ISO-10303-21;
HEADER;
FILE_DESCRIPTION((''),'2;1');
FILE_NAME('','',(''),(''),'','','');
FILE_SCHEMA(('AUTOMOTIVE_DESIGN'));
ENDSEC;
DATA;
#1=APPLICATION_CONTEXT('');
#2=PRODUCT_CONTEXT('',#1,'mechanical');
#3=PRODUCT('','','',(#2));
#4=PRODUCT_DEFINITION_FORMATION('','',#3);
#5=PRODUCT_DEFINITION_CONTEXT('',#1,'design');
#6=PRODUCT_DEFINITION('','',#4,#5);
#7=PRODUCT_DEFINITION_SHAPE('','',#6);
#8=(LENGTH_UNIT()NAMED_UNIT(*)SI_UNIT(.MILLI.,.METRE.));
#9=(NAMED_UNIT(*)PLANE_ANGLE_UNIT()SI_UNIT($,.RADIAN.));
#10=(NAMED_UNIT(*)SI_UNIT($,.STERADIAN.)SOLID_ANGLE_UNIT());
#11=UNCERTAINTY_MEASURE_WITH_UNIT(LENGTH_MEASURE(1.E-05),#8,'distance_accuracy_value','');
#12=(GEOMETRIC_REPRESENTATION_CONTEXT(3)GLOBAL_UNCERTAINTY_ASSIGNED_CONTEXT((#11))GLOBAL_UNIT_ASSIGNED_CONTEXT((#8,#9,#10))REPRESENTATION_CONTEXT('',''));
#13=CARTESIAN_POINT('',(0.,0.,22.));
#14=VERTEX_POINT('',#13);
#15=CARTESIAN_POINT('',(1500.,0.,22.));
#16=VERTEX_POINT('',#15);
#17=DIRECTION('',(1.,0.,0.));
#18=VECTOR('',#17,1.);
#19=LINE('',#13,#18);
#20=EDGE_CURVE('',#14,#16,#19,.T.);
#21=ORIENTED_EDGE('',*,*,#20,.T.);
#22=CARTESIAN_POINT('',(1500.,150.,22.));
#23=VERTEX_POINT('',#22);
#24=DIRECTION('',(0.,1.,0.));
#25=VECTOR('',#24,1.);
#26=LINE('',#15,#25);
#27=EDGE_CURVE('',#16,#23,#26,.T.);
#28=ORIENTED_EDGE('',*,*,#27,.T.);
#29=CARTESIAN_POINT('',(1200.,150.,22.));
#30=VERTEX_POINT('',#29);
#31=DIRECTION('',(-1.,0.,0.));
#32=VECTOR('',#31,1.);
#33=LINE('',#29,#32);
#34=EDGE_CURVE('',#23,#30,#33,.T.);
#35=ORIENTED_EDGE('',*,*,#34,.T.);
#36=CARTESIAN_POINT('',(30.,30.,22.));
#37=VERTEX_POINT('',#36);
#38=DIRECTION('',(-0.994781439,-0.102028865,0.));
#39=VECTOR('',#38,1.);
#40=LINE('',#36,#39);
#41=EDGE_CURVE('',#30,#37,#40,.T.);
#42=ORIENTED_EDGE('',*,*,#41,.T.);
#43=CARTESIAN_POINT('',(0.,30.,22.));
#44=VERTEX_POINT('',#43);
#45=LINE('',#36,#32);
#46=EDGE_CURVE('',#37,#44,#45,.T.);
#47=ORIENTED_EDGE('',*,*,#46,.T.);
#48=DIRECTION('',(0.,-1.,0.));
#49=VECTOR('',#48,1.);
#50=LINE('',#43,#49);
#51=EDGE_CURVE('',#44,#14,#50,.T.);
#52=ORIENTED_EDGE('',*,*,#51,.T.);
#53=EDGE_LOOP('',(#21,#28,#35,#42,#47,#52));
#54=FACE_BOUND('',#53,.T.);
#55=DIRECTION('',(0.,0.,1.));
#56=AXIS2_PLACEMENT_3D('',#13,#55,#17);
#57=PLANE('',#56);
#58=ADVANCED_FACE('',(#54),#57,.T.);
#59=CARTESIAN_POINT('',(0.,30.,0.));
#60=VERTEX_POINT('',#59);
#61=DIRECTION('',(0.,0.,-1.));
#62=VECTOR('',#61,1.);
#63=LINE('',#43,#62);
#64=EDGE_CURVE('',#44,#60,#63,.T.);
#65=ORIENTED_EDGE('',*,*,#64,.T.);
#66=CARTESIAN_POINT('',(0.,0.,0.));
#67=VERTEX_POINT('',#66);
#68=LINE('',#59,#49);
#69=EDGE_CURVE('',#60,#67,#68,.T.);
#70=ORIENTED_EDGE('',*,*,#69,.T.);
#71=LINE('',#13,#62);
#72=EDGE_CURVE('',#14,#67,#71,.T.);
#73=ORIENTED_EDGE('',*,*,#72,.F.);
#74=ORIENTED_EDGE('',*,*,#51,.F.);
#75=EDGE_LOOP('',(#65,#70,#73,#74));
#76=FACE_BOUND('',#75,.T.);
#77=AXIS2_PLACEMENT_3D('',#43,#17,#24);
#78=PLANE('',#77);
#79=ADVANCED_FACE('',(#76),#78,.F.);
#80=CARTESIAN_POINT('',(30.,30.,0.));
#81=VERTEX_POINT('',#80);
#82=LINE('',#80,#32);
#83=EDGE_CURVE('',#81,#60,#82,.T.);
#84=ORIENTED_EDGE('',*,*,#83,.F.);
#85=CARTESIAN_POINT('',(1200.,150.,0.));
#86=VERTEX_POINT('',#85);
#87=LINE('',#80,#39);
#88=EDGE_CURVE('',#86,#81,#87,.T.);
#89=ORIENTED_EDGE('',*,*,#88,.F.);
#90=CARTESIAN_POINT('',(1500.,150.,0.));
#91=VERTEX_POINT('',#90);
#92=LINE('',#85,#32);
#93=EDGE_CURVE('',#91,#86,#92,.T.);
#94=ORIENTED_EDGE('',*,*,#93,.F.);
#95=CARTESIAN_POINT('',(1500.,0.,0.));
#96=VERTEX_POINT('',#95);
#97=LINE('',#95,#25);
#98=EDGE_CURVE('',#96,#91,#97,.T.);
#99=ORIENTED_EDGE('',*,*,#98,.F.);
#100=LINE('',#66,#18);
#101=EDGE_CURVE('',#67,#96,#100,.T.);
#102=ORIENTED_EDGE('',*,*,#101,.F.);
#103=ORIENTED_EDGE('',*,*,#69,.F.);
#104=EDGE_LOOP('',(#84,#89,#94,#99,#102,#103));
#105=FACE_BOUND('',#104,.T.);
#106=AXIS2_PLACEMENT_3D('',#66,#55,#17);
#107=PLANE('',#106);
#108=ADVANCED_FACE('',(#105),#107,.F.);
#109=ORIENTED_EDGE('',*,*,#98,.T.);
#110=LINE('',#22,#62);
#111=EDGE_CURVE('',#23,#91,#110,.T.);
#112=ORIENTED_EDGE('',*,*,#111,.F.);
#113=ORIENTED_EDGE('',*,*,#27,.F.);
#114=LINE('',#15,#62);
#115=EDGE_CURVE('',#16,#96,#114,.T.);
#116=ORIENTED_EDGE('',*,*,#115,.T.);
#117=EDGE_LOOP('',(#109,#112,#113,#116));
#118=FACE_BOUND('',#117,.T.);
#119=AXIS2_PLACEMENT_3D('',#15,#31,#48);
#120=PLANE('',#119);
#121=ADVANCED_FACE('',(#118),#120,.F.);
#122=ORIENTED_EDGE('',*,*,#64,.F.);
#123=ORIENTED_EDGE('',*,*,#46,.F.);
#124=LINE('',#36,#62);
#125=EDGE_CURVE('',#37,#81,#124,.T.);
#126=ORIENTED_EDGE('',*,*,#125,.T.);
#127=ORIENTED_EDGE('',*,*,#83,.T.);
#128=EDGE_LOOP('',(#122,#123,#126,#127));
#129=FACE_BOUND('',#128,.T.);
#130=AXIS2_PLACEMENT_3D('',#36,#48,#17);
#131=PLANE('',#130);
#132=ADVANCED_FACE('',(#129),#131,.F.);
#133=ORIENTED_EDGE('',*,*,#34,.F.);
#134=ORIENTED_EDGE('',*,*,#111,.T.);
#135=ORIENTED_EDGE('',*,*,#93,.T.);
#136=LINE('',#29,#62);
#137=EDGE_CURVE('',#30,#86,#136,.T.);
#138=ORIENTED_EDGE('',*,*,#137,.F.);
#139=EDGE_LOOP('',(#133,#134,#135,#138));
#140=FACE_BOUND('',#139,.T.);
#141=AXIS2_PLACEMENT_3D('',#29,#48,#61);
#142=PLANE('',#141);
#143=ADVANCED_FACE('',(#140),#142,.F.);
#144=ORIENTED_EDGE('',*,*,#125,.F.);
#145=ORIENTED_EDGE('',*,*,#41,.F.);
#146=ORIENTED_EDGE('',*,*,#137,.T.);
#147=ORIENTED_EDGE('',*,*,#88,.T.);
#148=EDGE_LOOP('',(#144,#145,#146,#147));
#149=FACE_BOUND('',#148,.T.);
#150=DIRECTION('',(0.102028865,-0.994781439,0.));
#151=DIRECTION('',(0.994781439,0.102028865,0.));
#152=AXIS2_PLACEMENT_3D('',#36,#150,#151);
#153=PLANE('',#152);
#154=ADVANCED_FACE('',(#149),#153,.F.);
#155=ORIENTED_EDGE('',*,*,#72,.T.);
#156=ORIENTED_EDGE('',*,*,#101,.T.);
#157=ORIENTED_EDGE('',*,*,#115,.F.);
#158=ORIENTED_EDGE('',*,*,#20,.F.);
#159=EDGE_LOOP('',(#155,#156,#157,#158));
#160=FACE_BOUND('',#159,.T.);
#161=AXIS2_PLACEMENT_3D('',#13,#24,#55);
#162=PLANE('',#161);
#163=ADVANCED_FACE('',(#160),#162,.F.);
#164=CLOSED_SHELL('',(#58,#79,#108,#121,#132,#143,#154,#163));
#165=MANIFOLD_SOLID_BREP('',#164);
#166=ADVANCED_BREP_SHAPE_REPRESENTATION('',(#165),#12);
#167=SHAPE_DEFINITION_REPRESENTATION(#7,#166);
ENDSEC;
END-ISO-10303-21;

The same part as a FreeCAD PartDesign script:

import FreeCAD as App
import Part
import Sketcher

V = App.Vector
Q = App.Units.Quantity

doc = App.newDocument("Part")
body = doc.addObject("PartDesign::Body", "Body")

sketch1 = doc.addObject("Sketcher::SketchObject", "Sketch")
body.addObject(sketch1)
sketch1.AttachmentSupport = (doc.XY_Plane, [""])
sketch1.MapMode = "FlatFace"
sketch1.addGeometry([
    Part.LineSegment(V(1200, 150, 0), V(30, 30, 0)),
    Part.LineSegment(V(30, 30, 0), V(0, 30, 0)),
    Part.LineSegment(V(0, 30, 0), V(0, 0, 0)),
    Part.LineSegment(V(0, 0, 0), V(1500, 0, 0)),
    Part.LineSegment(V(1500, 0, 0), V(1500, 150, 0)),
    Part.LineSegment(V(1500, 150, 0), V(1200, 150, 0)),
], False)
sketch1.addConstraint([
    Sketcher.Constraint("Coincident", 0, 2, 1, 1),
    Sketcher.Constraint("Coincident", 1, 2, 2, 1),
    Sketcher.Constraint("Coincident", 2, 2, 3, 1),
    Sketcher.Constraint("Coincident", 3, 2, 4, 1),
    Sketcher.Constraint("Coincident", 4, 2, 5, 1),
    Sketcher.Constraint("Coincident", 5, 2, 0, 1),
    Sketcher.Constraint("Horizontal", 1),
    Sketcher.Constraint("Vertical", 2),
    Sketcher.Constraint("Horizontal", 3),
    Sketcher.Constraint("Vertical", 4),
    Sketcher.Constraint("Horizontal", 5),
    Sketcher.Constraint("Coincident", 2, 2, -1, 1),
    Sketcher.Constraint("Equal", 1, 2),
    Sketcher.Constraint("DistanceX", 1, 2, 1, 1, Q("30 mm")),
    Sketcher.Constraint("DistanceX", 3, 1, 3, 2, Q("1500 mm")),
    Sketcher.Constraint("DistanceX", 5, 2, 5, 1, Q("300 mm")),
    Sketcher.Constraint("DistanceY", 4, 1, 4, 2, Q("150 mm")),
])
pad1 = doc.addObject("PartDesign::Pad", "Pad")
body.addObject(pad1)
pad1.Profile = sketch1
pad1.Length = 22

doc.recompute()
